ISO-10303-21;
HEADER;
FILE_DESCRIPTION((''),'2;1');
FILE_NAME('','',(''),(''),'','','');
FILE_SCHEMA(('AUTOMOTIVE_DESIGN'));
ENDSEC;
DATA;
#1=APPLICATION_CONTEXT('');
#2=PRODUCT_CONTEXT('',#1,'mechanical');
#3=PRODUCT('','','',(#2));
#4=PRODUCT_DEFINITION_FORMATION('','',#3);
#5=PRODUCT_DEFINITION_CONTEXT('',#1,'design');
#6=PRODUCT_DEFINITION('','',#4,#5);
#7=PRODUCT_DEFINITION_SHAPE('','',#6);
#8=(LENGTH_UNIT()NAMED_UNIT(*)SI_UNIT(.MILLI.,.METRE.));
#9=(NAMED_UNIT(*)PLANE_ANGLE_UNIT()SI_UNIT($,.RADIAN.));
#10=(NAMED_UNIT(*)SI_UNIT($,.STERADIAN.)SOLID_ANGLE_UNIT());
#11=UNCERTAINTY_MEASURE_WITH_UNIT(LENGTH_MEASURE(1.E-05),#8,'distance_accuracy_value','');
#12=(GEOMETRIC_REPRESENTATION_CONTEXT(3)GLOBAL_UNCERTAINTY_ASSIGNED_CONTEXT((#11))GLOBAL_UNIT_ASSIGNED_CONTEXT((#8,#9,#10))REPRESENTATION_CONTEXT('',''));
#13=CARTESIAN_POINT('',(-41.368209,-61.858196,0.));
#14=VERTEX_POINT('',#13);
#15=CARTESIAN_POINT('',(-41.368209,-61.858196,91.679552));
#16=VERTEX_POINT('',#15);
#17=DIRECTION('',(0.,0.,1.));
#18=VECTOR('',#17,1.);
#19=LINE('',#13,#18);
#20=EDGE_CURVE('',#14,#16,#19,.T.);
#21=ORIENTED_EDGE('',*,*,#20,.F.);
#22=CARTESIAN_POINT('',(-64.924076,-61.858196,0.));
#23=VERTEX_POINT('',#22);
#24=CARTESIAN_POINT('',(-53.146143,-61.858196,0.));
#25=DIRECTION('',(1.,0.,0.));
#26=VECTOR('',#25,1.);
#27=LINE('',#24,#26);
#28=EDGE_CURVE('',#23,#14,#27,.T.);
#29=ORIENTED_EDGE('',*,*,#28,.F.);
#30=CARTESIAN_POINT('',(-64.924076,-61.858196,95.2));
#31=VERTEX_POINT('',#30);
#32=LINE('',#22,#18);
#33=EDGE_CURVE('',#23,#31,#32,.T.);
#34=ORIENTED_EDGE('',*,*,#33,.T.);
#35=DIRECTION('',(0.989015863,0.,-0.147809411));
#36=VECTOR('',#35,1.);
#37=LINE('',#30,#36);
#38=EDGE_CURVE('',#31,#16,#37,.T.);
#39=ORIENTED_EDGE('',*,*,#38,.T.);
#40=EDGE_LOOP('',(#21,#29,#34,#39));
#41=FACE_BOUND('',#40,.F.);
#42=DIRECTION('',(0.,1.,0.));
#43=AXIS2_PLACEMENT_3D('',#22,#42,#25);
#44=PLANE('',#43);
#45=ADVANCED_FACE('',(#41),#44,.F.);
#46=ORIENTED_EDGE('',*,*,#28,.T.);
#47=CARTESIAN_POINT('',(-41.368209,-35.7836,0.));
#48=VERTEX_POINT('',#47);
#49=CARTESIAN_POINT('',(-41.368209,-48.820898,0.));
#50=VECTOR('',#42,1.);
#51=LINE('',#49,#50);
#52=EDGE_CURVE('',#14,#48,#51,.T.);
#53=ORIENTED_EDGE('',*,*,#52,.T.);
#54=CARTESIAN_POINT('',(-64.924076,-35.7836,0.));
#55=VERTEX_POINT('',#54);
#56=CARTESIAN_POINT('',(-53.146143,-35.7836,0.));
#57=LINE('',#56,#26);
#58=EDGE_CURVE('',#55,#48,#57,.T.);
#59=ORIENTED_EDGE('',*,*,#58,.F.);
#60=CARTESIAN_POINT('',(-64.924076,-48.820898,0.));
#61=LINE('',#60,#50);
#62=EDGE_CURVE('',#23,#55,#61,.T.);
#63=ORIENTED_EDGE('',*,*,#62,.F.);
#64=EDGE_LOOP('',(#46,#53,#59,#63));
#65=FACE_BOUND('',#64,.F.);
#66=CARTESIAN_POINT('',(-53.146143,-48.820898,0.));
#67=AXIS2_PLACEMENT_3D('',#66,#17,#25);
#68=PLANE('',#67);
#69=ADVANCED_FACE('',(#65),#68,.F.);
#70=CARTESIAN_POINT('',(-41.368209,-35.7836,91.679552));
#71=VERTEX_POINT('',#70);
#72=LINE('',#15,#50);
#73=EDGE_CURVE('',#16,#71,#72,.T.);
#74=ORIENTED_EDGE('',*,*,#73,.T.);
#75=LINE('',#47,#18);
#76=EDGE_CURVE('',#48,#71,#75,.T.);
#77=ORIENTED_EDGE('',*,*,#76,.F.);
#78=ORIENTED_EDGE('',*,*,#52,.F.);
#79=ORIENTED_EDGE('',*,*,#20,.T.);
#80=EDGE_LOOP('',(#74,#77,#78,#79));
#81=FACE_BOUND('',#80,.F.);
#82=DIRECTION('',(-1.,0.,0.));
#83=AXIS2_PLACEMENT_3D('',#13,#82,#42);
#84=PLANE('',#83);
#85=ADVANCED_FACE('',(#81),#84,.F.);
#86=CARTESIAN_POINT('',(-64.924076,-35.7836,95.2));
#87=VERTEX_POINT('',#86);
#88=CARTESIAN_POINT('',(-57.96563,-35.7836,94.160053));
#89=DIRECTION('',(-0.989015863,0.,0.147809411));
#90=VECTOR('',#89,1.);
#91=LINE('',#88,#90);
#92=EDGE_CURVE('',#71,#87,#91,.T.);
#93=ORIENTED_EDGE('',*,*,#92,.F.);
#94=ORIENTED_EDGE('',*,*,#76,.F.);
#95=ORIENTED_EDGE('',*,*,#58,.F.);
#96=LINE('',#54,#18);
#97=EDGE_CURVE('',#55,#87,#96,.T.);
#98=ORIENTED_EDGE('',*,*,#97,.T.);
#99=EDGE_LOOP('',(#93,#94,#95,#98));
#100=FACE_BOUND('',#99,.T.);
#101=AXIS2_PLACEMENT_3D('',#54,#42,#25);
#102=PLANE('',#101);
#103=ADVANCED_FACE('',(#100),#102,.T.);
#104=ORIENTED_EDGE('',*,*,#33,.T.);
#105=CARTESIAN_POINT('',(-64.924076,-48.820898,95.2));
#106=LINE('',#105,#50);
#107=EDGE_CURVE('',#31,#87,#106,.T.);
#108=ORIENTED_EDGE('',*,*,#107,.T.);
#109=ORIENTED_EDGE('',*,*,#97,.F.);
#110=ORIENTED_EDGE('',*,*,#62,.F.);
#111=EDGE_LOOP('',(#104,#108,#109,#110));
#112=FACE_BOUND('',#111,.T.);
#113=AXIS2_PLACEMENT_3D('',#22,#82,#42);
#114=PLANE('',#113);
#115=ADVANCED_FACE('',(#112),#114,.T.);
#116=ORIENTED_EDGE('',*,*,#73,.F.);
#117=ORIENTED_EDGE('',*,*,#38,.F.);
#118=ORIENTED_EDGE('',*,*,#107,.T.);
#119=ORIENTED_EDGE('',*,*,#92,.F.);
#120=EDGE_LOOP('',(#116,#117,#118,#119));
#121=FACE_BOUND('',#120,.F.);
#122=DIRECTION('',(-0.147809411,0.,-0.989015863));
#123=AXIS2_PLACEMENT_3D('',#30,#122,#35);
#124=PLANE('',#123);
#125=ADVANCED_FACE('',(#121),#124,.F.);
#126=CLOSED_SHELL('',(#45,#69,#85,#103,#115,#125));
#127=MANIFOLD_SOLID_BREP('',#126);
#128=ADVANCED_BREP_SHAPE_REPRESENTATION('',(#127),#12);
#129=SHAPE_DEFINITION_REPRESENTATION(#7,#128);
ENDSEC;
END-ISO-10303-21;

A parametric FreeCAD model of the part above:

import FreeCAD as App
import Part
import Sketcher

V = App.Vector
Q = App.Units.Quantity


def add_polygon(sketch, points):
    """Adds a closed chain of lines whose ends are joined by coincident constraints."""
    first, n = sketch.GeometryCount, len(points)
    for a, b in zip(points, points[1:] + points[:1]):
        sketch.addGeometry(Part.LineSegment(App.Vector(*a, 0), App.Vector(*b, 0)), False)
    for i in range(n):
        sketch.addConstraint(Sketcher.Constraint("Coincident", first + i, 2, first + (i + 1) % n, 1))

doc = App.newDocument("Part")
params = doc.addObject("Spreadsheet::Sheet", "Params")
for row, (alias, value) in enumerate([
    ("pad1_length", "95.2 mm"),
    ("pocket1_length", "30 mm"),
], start=1):
    params.set(f"A{row}", alias)
    params.set(f"B{row}", "=" + value)
    params.setAlias(f"B{row}", alias)

body = doc.addObject("PartDesign::Body", "Body")

sketch1 = body.newObject("Sketcher::SketchObject", "Sketch")
sketch1.AttachmentSupport = (doc.getObject("XY_Plane"), [""])
sketch1.MapMode = "FlatFace"
add_polygon(sketch1, [(-65, -36), (-65, -62), (-41, -62), (-41, -36)])
sketch1.addConstraint([
    Sketcher.Constraint("Vertical", 0),
    Sketcher.Constraint("Horizontal", 1),
    Sketcher.Constraint("Vertical", 2),
    Sketcher.Constraint("Horizontal", 3),
    Sketcher.Constraint("DistanceY", 2, 2, -1, 1, Q("35.7836 mm")),
    Sketcher.Constraint("DistanceX", 1, 1, 1, 2, Q("23.555867 mm")),
    Sketcher.Constraint("DistanceY", 0, 2, 0, 1, Q("26.074596 mm")),
    Sketcher.Constraint("DistanceX", 1, 2, -1, 1, Q("41.368209 mm")),
])
pad1 = body.newObject("PartDesign::Pad", "Pad")
pad1.Profile = sketch1
pad1.setExpression("Length", "Params.pad1_length")

sketch2 = body.newObject("Sketcher::SketchObject", "Sketch001")
sketch2.AttachmentSupport = (doc.getObject("XZ_Plane"), [""])
sketch2.MapMode = "FlatFace"
sketch2.AttachmentOffset = App.Placement(V(0, 0, 61.858196), App.Rotation())
add_polygon(sketch2, [(-41.4, 95.2), (-64.9, 95.2), (-41.4, 91.7)])
sketch2.addConstraint([
    Sketcher.Constraint("Horizontal", 0),
    Sketcher.Constraint("Vertical", 2),
    Sketcher.Constraint("Angle", 1, Q("-8.5 deg")),
    Sketcher.Constraint("DistanceY", -1, 1, 0, 2, Q("95.2 mm")),
    Sketcher.Constraint("Distance", 1, Q("23.817482 mm")),
    Sketcher.Constraint("DistanceX", 1, 2, -1, 1, Q("41.368209 mm")),
])
pocket1 = body.newObject("PartDesign::Pocket", "Pocket")
pocket1.Profile = sketch2
pocket1.setExpression("Length", "Params.pocket1_length")

doc.recompute()
